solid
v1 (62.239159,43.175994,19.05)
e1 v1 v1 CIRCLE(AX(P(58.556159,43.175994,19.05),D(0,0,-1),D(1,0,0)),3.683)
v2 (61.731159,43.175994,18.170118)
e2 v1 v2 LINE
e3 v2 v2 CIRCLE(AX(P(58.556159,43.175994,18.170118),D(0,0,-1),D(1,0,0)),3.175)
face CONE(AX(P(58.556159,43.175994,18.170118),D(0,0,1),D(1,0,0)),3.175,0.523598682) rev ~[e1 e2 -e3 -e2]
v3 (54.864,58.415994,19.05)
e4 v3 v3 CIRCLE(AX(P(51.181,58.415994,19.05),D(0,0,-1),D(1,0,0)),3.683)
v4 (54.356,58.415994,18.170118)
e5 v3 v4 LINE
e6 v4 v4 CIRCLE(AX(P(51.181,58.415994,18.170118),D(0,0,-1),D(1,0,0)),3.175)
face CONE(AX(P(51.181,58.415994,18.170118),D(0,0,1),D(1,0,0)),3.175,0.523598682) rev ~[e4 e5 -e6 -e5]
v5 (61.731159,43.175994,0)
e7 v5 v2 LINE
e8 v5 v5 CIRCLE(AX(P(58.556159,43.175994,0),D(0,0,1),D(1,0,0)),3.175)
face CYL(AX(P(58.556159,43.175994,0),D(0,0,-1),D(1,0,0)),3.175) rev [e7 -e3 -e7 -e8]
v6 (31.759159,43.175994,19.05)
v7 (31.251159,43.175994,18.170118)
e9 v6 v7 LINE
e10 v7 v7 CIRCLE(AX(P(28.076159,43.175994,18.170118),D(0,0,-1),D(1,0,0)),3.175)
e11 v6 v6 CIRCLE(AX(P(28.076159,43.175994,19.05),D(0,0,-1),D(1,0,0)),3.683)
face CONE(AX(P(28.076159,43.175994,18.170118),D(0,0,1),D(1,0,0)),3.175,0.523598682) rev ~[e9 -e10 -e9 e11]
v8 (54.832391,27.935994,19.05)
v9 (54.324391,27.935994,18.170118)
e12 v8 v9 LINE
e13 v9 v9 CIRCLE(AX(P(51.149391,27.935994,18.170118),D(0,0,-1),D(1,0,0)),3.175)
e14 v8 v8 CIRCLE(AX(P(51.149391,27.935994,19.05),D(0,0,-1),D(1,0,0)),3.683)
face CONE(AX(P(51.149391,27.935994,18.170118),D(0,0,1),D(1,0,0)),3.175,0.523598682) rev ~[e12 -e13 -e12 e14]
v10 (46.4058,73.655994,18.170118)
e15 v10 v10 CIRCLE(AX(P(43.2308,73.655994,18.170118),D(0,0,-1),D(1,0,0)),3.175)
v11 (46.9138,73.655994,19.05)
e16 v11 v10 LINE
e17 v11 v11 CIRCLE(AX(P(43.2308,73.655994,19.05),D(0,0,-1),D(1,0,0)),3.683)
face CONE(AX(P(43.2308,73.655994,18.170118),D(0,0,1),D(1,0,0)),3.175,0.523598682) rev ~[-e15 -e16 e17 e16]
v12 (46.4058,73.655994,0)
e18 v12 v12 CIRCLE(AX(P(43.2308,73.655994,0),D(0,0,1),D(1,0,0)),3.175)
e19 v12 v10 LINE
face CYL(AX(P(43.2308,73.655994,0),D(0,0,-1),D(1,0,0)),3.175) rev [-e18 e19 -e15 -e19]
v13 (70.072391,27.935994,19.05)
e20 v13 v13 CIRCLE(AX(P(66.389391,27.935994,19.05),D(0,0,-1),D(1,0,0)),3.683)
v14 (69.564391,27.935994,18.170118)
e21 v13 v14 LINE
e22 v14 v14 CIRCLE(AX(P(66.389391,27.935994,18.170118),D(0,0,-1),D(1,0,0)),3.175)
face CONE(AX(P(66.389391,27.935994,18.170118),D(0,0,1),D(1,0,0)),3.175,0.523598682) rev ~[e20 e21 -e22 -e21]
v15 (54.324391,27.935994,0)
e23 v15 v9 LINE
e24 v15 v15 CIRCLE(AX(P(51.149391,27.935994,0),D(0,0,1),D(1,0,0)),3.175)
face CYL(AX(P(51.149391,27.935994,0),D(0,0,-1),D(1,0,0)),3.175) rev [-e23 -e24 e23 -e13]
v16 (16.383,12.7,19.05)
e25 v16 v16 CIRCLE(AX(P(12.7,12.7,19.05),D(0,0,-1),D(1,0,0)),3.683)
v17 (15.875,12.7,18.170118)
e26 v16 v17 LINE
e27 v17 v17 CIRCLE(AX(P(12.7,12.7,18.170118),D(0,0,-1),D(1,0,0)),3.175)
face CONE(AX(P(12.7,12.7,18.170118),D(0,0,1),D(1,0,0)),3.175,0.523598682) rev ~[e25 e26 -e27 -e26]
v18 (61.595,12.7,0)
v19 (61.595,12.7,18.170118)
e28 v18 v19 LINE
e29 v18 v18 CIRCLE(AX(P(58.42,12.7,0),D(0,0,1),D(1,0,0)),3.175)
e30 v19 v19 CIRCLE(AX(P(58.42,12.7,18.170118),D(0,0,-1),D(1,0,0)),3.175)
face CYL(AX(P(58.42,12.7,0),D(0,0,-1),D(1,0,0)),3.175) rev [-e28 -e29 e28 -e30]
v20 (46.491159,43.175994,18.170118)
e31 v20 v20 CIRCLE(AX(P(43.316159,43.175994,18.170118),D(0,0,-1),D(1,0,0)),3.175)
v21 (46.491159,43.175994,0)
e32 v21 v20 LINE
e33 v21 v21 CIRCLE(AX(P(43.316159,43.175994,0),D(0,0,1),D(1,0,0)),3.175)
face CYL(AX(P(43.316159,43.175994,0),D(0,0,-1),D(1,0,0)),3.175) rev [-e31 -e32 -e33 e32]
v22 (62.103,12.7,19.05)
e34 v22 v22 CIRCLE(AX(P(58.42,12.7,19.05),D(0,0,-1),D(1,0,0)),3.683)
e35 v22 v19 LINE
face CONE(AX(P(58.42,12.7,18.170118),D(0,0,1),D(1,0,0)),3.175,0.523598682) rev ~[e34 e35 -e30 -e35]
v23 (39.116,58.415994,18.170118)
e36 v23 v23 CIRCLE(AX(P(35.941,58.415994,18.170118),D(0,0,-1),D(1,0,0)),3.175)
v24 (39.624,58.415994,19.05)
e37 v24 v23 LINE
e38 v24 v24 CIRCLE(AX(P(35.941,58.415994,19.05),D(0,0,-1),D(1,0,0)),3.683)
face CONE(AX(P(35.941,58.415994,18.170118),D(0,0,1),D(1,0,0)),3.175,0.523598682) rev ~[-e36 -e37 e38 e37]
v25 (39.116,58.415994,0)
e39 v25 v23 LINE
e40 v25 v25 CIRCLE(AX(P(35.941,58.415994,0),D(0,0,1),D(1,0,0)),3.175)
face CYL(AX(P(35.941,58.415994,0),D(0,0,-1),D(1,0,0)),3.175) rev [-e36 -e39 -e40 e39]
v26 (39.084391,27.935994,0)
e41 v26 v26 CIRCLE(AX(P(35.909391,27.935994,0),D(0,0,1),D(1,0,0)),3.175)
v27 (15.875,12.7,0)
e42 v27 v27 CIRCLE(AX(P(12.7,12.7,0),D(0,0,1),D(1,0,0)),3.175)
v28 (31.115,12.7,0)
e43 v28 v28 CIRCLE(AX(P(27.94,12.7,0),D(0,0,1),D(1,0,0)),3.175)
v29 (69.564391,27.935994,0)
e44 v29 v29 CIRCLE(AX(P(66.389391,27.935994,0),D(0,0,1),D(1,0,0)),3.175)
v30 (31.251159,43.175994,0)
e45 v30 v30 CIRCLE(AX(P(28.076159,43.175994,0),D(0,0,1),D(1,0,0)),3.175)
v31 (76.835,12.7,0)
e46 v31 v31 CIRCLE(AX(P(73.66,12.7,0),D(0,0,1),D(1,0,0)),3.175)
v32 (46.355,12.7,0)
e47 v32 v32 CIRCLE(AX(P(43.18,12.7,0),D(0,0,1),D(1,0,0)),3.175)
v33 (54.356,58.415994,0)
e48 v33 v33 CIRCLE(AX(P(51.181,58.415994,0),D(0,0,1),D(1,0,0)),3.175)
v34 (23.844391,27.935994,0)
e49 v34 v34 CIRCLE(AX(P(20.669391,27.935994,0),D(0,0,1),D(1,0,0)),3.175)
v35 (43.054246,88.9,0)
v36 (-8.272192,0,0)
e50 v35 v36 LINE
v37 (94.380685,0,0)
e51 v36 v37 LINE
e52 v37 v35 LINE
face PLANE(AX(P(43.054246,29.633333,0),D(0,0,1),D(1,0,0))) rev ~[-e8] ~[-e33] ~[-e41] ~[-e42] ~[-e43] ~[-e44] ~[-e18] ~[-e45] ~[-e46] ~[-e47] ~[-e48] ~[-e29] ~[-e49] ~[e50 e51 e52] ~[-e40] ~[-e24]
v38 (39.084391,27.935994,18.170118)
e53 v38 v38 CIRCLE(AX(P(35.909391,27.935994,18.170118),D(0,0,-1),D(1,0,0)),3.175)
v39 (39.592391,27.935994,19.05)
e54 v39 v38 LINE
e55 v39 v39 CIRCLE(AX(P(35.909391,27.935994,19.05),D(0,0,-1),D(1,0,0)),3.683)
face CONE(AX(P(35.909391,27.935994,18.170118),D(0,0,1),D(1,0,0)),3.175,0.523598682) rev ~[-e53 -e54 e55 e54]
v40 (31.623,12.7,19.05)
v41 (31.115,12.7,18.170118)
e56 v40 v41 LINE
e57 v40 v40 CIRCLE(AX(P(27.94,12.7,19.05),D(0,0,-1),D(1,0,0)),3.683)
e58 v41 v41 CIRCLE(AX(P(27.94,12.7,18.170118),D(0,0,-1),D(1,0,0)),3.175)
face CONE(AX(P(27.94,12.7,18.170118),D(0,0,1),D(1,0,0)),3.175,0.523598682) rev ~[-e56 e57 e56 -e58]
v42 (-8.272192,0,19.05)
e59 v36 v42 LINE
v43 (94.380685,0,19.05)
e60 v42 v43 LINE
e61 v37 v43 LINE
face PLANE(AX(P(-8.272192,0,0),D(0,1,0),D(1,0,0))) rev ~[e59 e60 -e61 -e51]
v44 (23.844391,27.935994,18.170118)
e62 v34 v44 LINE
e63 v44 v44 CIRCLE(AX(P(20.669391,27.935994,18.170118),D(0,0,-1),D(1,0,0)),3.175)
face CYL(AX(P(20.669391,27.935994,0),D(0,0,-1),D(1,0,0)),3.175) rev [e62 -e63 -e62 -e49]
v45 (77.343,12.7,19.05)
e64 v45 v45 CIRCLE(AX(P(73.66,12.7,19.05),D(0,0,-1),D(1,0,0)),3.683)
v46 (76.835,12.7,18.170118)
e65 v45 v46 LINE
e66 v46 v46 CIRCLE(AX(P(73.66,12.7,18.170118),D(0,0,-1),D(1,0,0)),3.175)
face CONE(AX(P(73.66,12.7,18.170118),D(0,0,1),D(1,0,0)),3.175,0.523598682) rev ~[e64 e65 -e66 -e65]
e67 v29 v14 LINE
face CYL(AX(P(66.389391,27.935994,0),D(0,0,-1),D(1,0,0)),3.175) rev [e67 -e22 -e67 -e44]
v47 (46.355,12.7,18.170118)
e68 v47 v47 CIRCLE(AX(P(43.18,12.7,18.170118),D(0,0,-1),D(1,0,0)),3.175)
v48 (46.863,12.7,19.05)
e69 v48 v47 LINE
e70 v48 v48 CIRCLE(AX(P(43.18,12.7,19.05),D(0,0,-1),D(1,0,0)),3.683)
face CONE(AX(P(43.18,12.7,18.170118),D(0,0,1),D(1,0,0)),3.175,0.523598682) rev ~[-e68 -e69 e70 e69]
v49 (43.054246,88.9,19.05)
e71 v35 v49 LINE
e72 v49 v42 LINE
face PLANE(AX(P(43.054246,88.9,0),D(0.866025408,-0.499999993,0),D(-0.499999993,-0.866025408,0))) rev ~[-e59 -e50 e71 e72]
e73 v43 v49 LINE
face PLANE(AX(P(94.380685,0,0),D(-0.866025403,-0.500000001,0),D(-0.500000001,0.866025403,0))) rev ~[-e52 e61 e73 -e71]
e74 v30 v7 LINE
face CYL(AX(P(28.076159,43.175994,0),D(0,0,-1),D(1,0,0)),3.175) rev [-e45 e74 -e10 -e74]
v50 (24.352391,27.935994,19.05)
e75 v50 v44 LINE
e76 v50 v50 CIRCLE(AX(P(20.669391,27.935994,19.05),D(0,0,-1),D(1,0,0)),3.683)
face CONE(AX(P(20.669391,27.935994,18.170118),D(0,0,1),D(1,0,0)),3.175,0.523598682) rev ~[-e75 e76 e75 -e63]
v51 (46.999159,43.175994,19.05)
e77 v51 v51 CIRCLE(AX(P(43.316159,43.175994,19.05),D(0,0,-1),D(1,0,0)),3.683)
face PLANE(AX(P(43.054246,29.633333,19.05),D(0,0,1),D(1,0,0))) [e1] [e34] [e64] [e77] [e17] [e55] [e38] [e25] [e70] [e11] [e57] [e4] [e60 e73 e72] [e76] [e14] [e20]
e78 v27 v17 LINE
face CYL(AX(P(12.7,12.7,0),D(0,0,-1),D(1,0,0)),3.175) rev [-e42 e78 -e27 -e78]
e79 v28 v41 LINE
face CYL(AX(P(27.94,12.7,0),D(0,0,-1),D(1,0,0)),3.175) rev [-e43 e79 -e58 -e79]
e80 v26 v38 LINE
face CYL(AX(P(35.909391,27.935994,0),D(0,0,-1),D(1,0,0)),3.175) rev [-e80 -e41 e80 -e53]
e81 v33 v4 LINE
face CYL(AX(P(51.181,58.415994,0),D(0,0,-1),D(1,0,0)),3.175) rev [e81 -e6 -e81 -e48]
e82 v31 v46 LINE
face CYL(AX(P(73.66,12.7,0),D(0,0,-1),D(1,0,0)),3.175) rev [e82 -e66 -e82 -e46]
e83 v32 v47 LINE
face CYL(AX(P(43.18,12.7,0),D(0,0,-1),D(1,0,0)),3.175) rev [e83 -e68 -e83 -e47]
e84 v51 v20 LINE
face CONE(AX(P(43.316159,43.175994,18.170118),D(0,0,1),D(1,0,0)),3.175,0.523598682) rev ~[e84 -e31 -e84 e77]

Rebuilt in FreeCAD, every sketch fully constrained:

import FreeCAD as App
import Part
import Sketcher
Q = App.Units.Quantity


def edges_at(feature, points):
    """Names of the edges that pass closest to the given points."""
    edges = feature.Shape.Edges
    near = lambda p: min(range(len(edges)), key=lambda i: edges[i].distToShape(Part.Vertex(*p))[0])
    return sorted({f"Edge{near(p) + 1}" for p in points})

doc = App.newDocument("Part")
body = doc.addObject("PartDesign::Body", "Body")

sketch1 = body.newObject("Sketcher::SketchObject", "Sketch")
sketch1.AttachmentSupport = (doc.getObject("XY_Plane"), [""])
sketch1.MapMode = "FlatFace"
sketch1.addGeometry([
    Part.LineSegment(App.Vector(-8.272192, 0, 0), App.Vector(94.380685, 0, 0)),
    Part.LineSegment(App.Vector(94.380685, 0, 0), App.Vector(43.054246, 88.9, 0)),
    Part.LineSegment(App.Vector(43.054246, 88.9, 0), App.Vector(-8.272192, 0, 0)),
], False)
sketch1.addConstraint([
    Sketcher.Constraint("Coincident", 0, 2, 1, 1),
    Sketcher.Constraint("Coincident", 1, 2, 2, 1),
    Sketcher.Constraint("Coincident", 2, 2, 0, 1),
    Sketcher.Constraint("Horizontal", 0),
    Sketcher.Constraint("PointOnObject", 0, 2, -1),
    Sketcher.Constraint("Equal", 1, 2),
    Sketcher.Constraint("Angle", 1, Q("120 deg")),
    Sketcher.Constraint("DistanceY", -1, 1, 1, 2, Q("3.5 in")),
    Sketcher.Constraint("DistanceX", -1, 1, 0, 2, 94.380685),
])
pad1 = body.newObject("PartDesign::Pad", "Pad")
pad1.Profile = sketch1
pad1.Length = Q("0.75 in")

sketch2 = body.newObject("Sketcher::SketchObject", "Sketch001")
sketch2.AttachmentSupport = (doc.getObject("XY_Plane"), [""])
sketch2.MapMode = "FlatFace"
sketch2.addGeometry([
    Part.Circle(App.Vector(12.7, 12.7, 0), App.Vector(0, 0, 1), 3.175),
    Part.Circle(App.Vector(27.94, 12.7, 0), App.Vector(0, 0, 1), 3.175),
    Part.Circle(App.Vector(43.18, 12.7, 0), App.Vector(0, 0, 1), 3.175),
    Part.Circle(App.Vector(58.42, 12.7, 0), App.Vector(0, 0, 1), 3.175),
    Part.Circle(App.Vector(73.66, 12.7, 0), App.Vector(0, 0, 1), 3.175),
    Part.Circle(App.Vector(20.669391, 27.935994, 0), App.Vector(0, 0, 1), 3.175),
    Part.Circle(App.Vector(35.909391, 27.935994, 0), App.Vector(0, 0, 1), 3.175),
    Part.Circle(App.Vector(51.149391, 27.935994, 0), App.Vector(0, 0, 1), 3.175),
    Part.Circle(App.Vector(66.389391, 27.935994, 0), App.Vector(0, 0, 1), 3.175),
    Part.Circle(App.Vector(28.076159, 43.175994, 0), App.Vector(0, 0, 1), 3.175),
    Part.Circle(App.Vector(43.316159, 43.175994, 0), App.Vector(0, 0, 1), 3.175),
    Part.Circle(App.Vector(58.556159, 43.175994, 0), App.Vector(0, 0, 1), 3.175),
    Part.Circle(App.Vector(35.941, 58.415994, 0), App.Vector(0, 0, 1), 3.175),
    Part.Circle(App.Vector(51.181, 58.415994, 0), App.Vector(0, 0, 1), 3.175),
    Part.Circle(App.Vector(43.2308, 73.655994, 0), App.Vector(0, 0, 1), 3.175),
], False)
sketch2.addConstraint([
    Sketcher.Constraint("Equal", 0, 1),
    Sketcher.Constraint("Equal", 1, 2),
    Sketcher.Constraint("Equal", 2, 3),
    Sketcher.Constraint("Equal", 3, 4),
    Sketcher.Constraint("Equal", 4, 5),
    Sketcher.Constraint("Equal", 5, 6),
    Sketcher.Constraint("Equal", 6, 7),
    Sketcher.Constraint("Equal", 7, 8),
    Sketcher.Constraint("Equal", 8, 9),
    Sketcher.Constraint("Equal", 9, 10),
    Sketcher.Constraint("Equal", 10, 11),
    Sketcher.Constraint("Equal", 11, 12),
    Sketcher.Constraint("Equal", 12, 13),
    Sketcher.Constraint("Equal", 13, 14),
    Sketcher.Constraint("Horizontal", 0, 3, 1, 3),
    Sketcher.Constraint("Horizontal", 1, 3, 2, 3),
    Sketcher.Constraint("Horizontal", 2, 3, 3, 3),
    Sketcher.Constraint("Horizontal", 3, 3, 4, 3),
    Sketcher.Constraint("Horizontal", 5, 3, 6, 3),
    Sketcher.Constraint("Horizontal", 6, 3, 7, 3),
    Sketcher.Constraint("Horizontal", 7, 3, 8, 3),
    Sketcher.Constraint("Horizontal", 9, 3, 10, 3),
    Sketcher.Constraint("Horizontal", 10, 3, 11, 3),
    Sketcher.Constraint("Horizontal", 12, 3, 13, 3),
    Sketcher.Constraint("Diameter", 0, Q("0.25 in")),
    Sketcher.Constraint("DistanceX", -1, 1, 0, 3, Q("0.5 in")),
    Sketcher.Constraint("DistanceY", -1, 1, 0, 3, Q("0.5 in")),
    Sketcher.Constraint("DistanceX", -1, 1, 1, 3, Q("1.1 in")),
    Sketcher.Constraint("DistanceX", -1, 1, 2, 3, Q("1.7 in")),
    Sketcher.Constraint("DistanceX", -1, 1, 3, 3, Q("2.3 in")),
    Sketcher.Constraint("DistanceX", -1, 1, 4, 3, Q("2.9 in")),
    Sketcher.Constraint("DistanceX", 5, 3, 6, 3, Q("0.6 in")),
    Sketcher.Constraint("DistanceX", 6, 3, 7, 3, Q("0.6 in")),
    Sketcher.Constraint("DistanceX", 7, 3, 8, 3, Q("0.6 in")),
    Sketcher.Constraint("DistanceY", 5, 3, 9, 3, Q("0.6 in")),
    Sketcher.Constraint("DistanceX", 9, 3, 10, 3, Q("0.6 in")),
    Sketcher.Constraint("DistanceX", 10, 3, 11, 3, Q("0.6 in")),
    Sketcher.Constraint("DistanceY", 10, 3, 12, 3, Q("0.6 in")),
    Sketcher.Constraint("DistanceX", 12, 3, 13, 3, Q("0.6 in")),
    Sketcher.Constraint("DistanceY", 12, 3, 14, 3, Q("0.6 in")),
    Sketcher.Constraint("DistanceX", -1, 1, 12, 3, Q("1.415 in")),
    Sketcher.Constraint("DistanceX", -1, 1, 14, 3, Q("1.702 in")),
    Sketcher.Constraint("DistanceX", -1, 1, 5, 3, 20.669391),
    Sketcher.Constraint("DistanceX", -1, 1, 9, 3, 28.076159),
    Sketcher.Constraint("DistanceY", -1, 1, 5, 3, 27.935994),
])
pocket1 = body.newObject("PartDesign::Pocket", "Pocket")
pocket1.Profile = sketch2
pocket1.Length = Q("1 in")
pocket1.Reversed = True
doc.recompute()

chamfer = body.newObject("PartDesign::Chamfer", "Chamfer")
chamfer.Base = (pocket1, edges_at(pocket1, [
    (9.525, 12.7, 19.05),
    (24.765, 12.7, 19.05),
    (40.005, 12.7, 19.05),
    (55.245, 12.7, 19.05),
    (70.485, 12.7, 19.05),
    (63.214, 27.936, 19.05),
    (47.974, 27.936, 19.05),
    (32.734, 27.936, 19.05),
    (17.494, 27.936, 19.05),
    (24.901, 43.176, 19.05),
    (40.141, 43.176, 19.05),
    (55.381, 43.176, 19.05),
    (48.006, 58.416, 19.05),
    (32.766, 58.416, 19.05),
    (40.056, 73.656, 19.05),
]))
chamfer.ChamferType = "Two distances"
chamfer.Size = Q("0.02 in")
chamfer.Size2 = 0.879882

doc.recompute()
